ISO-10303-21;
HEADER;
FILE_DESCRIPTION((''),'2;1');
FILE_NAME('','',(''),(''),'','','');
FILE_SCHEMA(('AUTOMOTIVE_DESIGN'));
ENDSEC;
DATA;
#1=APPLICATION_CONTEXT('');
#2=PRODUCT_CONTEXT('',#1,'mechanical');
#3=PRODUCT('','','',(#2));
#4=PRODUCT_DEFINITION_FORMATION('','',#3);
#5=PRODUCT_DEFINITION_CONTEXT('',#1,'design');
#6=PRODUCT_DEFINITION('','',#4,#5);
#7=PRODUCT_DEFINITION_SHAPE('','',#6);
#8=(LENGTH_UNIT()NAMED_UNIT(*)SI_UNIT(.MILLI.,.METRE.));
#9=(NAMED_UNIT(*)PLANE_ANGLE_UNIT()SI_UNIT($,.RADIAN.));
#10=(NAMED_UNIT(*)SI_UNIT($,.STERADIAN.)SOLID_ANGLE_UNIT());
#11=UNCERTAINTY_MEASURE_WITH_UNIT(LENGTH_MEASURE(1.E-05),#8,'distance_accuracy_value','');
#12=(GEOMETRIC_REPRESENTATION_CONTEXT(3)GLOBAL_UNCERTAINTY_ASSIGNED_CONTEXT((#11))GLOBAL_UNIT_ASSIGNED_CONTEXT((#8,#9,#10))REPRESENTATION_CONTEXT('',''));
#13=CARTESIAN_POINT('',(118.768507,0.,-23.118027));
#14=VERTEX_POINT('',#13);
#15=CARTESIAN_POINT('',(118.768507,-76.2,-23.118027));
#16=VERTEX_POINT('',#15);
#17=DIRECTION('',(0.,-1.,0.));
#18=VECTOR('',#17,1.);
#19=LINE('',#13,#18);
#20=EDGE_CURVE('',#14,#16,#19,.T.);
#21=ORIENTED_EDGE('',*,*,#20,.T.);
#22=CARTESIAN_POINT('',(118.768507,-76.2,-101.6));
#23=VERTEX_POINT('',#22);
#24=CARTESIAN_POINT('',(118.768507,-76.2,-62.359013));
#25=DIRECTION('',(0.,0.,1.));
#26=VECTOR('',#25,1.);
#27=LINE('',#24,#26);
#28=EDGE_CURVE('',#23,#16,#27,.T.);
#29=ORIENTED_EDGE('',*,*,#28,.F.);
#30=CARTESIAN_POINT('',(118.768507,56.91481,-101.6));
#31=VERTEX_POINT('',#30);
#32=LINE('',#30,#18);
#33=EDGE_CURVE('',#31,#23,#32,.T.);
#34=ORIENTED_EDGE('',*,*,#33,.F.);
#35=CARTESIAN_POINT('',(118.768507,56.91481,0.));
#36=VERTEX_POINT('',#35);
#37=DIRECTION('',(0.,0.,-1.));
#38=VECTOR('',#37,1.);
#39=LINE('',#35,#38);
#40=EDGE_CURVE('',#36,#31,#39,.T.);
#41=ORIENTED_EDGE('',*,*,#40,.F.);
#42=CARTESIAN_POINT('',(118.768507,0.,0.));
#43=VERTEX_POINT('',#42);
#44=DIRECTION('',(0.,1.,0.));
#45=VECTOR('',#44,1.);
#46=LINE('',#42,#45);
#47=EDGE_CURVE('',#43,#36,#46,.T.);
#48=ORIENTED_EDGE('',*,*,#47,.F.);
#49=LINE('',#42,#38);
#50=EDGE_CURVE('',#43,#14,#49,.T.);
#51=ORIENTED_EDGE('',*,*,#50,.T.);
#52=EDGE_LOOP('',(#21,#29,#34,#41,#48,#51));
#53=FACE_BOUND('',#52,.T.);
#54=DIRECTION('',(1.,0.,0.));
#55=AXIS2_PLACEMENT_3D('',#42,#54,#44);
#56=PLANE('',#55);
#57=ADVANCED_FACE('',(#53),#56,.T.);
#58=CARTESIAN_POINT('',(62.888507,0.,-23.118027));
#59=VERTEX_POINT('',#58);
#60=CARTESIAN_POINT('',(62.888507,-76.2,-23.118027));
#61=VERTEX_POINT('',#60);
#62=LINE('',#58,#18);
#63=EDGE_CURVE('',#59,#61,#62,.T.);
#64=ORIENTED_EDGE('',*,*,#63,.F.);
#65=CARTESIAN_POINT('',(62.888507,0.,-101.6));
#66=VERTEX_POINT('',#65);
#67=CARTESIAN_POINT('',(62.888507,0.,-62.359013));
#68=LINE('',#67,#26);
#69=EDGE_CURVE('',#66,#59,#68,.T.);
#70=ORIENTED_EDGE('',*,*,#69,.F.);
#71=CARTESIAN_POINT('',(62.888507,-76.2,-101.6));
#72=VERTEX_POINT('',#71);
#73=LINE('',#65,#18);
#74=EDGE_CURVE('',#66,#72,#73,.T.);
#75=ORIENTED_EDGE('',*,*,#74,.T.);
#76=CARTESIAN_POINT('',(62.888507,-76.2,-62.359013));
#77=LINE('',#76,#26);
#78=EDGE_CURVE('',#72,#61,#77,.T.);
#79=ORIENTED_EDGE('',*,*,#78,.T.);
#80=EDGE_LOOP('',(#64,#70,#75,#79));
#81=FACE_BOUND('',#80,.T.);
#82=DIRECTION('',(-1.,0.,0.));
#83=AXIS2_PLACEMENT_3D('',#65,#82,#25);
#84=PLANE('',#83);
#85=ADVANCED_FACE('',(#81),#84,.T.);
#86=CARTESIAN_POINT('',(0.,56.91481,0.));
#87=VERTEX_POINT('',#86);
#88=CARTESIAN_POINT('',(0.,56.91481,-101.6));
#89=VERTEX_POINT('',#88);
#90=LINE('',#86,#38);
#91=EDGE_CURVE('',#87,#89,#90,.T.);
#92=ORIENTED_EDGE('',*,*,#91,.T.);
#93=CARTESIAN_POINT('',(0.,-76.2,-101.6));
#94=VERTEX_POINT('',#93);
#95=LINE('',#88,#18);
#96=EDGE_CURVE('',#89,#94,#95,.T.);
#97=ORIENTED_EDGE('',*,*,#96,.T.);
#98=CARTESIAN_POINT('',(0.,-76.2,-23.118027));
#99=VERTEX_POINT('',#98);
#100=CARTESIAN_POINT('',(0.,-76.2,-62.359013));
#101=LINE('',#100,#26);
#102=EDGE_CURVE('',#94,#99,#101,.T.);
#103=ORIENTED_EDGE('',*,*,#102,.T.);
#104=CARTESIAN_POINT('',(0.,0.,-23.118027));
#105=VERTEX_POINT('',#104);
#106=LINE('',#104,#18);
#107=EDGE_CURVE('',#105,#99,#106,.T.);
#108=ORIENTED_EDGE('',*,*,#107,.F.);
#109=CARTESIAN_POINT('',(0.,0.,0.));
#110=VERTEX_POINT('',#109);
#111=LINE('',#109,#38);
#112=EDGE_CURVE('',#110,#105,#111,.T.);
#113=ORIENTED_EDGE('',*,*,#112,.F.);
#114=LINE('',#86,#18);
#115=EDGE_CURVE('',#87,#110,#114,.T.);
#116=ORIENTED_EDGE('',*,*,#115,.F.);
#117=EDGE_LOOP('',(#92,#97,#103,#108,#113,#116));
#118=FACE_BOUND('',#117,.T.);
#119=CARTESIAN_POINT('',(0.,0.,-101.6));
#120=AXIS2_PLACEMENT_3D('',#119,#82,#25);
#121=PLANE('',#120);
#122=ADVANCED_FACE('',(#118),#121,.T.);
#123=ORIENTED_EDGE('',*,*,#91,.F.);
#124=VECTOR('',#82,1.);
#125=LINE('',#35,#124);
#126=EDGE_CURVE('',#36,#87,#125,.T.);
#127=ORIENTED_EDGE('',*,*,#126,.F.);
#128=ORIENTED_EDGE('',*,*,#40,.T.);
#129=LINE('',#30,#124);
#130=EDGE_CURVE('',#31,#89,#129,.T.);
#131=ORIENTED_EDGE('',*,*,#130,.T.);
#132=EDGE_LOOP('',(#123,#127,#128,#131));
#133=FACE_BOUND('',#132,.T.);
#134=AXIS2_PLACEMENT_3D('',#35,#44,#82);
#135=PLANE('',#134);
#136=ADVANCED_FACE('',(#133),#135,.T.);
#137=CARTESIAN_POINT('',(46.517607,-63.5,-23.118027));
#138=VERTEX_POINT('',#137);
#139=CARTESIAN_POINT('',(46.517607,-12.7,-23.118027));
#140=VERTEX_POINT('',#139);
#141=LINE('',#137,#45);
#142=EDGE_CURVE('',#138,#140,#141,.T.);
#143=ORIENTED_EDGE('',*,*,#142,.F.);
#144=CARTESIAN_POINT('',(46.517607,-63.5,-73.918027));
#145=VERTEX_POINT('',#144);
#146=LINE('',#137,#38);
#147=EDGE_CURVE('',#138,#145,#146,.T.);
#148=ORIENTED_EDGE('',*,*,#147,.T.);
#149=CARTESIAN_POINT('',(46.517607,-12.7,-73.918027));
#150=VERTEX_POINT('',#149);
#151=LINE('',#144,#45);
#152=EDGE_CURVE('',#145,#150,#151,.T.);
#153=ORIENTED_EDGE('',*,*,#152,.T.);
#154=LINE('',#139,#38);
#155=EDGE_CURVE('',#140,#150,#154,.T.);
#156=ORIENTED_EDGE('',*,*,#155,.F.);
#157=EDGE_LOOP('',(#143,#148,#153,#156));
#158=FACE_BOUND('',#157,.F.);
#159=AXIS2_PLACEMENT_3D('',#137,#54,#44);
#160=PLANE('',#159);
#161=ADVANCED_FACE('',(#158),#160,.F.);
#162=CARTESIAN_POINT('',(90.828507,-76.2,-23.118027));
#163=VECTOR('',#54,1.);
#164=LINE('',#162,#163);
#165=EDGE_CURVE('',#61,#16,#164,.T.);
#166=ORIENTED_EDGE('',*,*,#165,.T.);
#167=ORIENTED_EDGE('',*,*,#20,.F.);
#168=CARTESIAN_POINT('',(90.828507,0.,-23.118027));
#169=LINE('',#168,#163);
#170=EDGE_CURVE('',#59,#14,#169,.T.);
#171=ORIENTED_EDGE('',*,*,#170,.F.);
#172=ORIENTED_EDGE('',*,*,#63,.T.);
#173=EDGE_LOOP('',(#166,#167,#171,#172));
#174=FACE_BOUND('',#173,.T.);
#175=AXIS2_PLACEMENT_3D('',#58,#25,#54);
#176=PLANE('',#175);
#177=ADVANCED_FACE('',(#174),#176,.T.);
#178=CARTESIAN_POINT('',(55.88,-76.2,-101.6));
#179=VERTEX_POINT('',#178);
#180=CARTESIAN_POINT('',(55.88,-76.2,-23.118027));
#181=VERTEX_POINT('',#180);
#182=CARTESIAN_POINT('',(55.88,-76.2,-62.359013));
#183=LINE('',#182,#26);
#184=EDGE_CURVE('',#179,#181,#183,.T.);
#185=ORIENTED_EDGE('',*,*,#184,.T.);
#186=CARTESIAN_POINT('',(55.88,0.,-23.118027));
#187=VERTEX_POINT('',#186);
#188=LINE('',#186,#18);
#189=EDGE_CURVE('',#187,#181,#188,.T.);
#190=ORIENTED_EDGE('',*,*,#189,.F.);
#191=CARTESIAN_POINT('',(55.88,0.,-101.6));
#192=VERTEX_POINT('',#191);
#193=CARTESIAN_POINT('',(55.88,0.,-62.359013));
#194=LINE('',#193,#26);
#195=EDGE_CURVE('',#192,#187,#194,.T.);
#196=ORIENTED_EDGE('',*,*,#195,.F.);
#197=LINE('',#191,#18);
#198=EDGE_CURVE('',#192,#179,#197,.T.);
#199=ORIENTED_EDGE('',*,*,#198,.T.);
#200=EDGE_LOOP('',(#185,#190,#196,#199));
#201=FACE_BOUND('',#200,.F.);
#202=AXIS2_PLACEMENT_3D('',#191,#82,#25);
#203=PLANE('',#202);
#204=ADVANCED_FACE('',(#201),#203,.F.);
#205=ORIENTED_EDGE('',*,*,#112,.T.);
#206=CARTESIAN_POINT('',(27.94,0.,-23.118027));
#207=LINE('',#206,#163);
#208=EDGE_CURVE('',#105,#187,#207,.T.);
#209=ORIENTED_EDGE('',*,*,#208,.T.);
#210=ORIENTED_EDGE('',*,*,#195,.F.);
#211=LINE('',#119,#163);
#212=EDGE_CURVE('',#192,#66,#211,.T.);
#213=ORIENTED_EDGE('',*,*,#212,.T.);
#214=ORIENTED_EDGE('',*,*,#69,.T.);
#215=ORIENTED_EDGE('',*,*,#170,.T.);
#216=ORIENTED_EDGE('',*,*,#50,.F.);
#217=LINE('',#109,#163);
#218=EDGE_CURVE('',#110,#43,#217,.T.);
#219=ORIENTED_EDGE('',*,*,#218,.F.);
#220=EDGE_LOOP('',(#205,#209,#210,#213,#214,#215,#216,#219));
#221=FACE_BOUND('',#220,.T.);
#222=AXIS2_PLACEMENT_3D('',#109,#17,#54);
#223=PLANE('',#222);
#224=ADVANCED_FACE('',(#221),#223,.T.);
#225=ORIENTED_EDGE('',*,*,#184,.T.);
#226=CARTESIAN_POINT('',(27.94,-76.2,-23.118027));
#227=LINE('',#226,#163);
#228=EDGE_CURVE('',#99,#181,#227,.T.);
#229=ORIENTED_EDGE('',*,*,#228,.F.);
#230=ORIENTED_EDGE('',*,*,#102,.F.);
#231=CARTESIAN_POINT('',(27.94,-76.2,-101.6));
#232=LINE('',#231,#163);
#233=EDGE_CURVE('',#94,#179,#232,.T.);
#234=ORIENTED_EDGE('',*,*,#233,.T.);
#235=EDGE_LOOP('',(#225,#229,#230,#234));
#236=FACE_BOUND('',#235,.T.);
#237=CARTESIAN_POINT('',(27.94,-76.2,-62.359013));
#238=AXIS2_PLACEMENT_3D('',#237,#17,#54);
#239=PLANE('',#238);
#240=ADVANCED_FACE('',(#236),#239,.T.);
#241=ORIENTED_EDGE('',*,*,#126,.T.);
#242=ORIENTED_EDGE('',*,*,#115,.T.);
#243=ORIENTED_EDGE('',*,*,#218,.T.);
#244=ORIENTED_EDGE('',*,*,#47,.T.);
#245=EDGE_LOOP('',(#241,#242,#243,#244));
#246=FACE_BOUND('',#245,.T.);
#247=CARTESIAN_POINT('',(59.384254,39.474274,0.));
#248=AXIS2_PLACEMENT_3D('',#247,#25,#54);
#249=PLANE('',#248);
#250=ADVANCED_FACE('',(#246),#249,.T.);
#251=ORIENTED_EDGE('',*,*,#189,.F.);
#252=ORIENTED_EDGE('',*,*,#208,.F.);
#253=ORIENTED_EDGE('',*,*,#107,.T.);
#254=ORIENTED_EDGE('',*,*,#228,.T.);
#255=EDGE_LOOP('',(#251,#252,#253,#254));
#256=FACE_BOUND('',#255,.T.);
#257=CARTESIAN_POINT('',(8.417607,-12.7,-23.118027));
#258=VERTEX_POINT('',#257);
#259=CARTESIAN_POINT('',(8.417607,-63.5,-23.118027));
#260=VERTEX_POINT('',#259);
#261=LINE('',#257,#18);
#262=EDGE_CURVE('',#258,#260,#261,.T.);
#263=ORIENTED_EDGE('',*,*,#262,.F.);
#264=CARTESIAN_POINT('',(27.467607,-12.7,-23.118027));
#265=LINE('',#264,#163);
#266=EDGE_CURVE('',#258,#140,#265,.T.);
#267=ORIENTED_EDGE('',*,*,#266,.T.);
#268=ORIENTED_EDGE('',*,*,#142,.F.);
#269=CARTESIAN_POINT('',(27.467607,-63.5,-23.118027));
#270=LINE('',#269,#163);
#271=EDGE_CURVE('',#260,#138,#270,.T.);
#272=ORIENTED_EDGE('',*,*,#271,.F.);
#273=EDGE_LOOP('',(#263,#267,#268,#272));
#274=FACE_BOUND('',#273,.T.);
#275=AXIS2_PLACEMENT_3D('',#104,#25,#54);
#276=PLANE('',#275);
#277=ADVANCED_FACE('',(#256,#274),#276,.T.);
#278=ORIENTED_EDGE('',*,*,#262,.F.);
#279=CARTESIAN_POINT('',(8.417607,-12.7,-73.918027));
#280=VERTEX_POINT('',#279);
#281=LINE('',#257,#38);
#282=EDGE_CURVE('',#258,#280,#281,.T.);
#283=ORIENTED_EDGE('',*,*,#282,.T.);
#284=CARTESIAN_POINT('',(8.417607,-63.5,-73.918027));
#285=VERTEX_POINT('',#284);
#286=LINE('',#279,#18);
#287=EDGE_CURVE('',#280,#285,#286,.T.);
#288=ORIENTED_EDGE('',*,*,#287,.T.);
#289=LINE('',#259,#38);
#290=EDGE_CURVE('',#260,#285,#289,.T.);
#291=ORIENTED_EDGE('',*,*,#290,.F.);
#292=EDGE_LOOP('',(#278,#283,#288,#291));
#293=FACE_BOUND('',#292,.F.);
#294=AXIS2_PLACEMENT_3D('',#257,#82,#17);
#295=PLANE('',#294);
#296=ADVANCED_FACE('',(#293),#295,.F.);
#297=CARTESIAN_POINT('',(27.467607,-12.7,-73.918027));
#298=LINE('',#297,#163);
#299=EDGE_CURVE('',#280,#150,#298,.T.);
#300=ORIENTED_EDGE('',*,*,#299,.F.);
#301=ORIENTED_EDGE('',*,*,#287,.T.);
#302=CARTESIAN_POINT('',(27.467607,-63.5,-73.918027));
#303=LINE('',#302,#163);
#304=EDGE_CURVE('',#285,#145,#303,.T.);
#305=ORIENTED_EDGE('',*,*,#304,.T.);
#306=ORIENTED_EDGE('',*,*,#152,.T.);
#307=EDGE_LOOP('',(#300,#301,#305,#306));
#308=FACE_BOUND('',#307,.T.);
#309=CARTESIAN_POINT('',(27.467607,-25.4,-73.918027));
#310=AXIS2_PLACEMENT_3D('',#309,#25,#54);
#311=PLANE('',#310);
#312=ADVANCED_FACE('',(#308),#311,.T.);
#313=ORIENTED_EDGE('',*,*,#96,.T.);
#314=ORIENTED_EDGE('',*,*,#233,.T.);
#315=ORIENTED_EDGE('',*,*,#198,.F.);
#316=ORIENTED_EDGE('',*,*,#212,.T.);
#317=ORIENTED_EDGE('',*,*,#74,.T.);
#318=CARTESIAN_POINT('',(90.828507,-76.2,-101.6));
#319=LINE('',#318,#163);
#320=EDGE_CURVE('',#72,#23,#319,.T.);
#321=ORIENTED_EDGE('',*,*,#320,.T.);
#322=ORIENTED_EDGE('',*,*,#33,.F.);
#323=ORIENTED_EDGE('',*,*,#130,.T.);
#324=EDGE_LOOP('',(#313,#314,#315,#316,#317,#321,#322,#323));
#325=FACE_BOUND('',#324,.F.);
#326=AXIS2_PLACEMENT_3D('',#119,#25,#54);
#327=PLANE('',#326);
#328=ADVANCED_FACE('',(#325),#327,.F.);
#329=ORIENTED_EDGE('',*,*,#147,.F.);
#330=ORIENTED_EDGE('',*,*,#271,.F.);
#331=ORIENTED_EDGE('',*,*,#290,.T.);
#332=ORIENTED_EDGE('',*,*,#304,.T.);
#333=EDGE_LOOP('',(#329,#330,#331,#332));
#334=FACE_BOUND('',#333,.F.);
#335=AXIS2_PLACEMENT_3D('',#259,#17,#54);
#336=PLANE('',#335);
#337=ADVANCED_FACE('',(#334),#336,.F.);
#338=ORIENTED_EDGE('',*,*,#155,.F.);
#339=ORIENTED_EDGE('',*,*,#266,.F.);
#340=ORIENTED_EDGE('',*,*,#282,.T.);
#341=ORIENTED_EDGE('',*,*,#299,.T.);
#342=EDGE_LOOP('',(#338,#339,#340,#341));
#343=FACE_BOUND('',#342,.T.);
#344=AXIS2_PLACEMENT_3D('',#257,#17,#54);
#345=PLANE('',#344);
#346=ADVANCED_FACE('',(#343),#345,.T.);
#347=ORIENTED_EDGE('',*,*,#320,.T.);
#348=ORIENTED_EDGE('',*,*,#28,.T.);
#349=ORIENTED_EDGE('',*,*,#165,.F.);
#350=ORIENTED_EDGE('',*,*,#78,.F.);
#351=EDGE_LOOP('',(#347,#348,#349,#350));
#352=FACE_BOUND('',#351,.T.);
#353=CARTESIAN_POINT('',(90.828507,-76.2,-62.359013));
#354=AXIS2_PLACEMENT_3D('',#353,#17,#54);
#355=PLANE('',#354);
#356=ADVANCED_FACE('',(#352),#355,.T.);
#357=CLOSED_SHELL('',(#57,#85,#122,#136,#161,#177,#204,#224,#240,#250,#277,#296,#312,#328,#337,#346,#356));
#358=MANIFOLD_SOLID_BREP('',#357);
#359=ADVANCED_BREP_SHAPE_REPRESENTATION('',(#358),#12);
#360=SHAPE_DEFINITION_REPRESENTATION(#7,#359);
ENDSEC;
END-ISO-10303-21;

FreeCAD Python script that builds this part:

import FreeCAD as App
import Part
import Sketcher
Q = App.Units.Quantity


def add_polygon(sketch, points):
    """Adds a closed chain of lines whose ends are joined by coincident constraints."""
    first, n = sketch.GeometryCount, len(points)
    for a, b in zip(points, points[1:] + points[:1]):
        sketch.addGeometry(Part.LineSegment(App.Vector(*a, 0), App.Vector(*b, 0)), False)
    for i in range(n):
        sketch.addConstraint(Sketcher.Constraint("Coincident", first + i, 2, first + (i + 1) % n, 1))

doc = App.newDocument("Part")
body = doc.addObject("PartDesign::Body", "Body")

# Sketch on XY plane
sketch1 = body.newObject("Sketcher::SketchObject", "Sketch")
sketch1.AttachmentSupport = (doc.getObject("XY_Plane"), [""])
sketch1.MapMode = "FlatFace"
add_polygon(sketch1, [(118.768507, 0), (118.768507, 56.91481), (0, 56.91481), (0, 0)])  # lines 0-3
sketch1.addConstraint([
    Sketcher.Constraint("Vertical", 0),
    Sketcher.Constraint("Horizontal", 1),
    Sketcher.Constraint("Vertical", 2),
    Sketcher.Constraint("Horizontal", 3),
    Sketcher.Constraint("Coincident", 2, 2, -1, 1),
    Sketcher.Constraint("DistanceY", 0, 1, 0, 2, Q("56.91481 mm")),
    Sketcher.Constraint("DistanceX", 1, 2, 1, 1, Q("118.768507 mm")),
])
pad1 = body.newObject("PartDesign::Pad", "Pad")
pad1.Profile = sketch1
pad1.Length = Q("4 in")
pad1.Reversed = True

# Sketch on XZ plane
sketch2 = body.newObject("Sketcher::SketchObject", "Sketch001")
sketch2.AttachmentSupport = (doc.getObject("XZ_Plane"), [""])
sketch2.MapMode = "FlatFace"
add_polygon(sketch2, [(0, -23.118027), (0, -101.6), (55.88, -101.6), (55.88, -23.118027)])  # lines 0-3
add_polygon(sketch2, [(62.888507, -23.118027), (62.888507, -101.6), (118.768507, -101.6), (118.768507, -23.118027)])  # lines 4-7
sketch2.addConstraint([
    Sketcher.Constraint("Vertical", 0),
    Sketcher.Constraint("Horizontal", 1),
    Sketcher.Constraint("Vertical", 2),
    Sketcher.Constraint("Horizontal", 3),
    Sketcher.Constraint("Vertical", 4),
    Sketcher.Constraint("Horizontal", 5),
    Sketcher.Constraint("Vertical", 6),
    Sketcher.Constraint("Horizontal", 7),
    Sketcher.Constraint("PointOnObject", 0, 2, -2),
    Sketcher.Constraint("Horizontal", 1, 2, 4, 2),
    Sketcher.Constraint("Horizontal", 3, 2, 6, 2),
    Sketcher.Constraint("Equal", 3, 5),
    Sketcher.Constraint("DistanceX", 1, 1, 1, 2, Q("2.2 in")),
    Sketcher.Constraint("DistanceY", 0, 2, -1, 1, Q("4 in")),
    Sketcher.Constraint("DistanceY", 0, 2, 0, 1, Q("78.481973 mm")),
    Sketcher.Constraint("DistanceX", -1, 1, 4, 2, Q("62.888507 mm")),
])
pad2 = body.newObject("PartDesign::Pad", "Pad001")
pad2.Profile = sketch2
pad2.Length = Q("3 in")

# Sketch on XY plane
sketch3 = body.newObject("Sketcher::SketchObject", "Sketch002")
sketch3.AttachmentSupport = (doc.getObject("XY_Plane"), [""])
sketch3.MapMode = "FlatFace"
sketch3.AttachmentOffset = App.Placement(App.Vector(0, 0, -23.118027), App.Rotation())
add_polygon(sketch3, [(8.417607, -12.7), (8.417607, -63.5), (46.517607, -63.5), (46.517607, -12.7)])  # lines 0-3
sketch3.addConstraint([
    Sketcher.Constraint("Vertical", 0),
    Sketcher.Constraint("Horizontal", 1),
    Sketcher.Constraint("Vertical", 2),
    Sketcher.Constraint("Horizontal", 3),
    Sketcher.Constraint("DistanceY", 0, 2, 0, 1, Q("2 in")),
    Sketcher.Constraint("DistanceX", 1, 1, 1, 2, Q("1.5 in")),
    Sketcher.Constraint("DistanceY", 0, 2, -1, 1, Q("2.5 in")),
    Sketcher.Constraint("DistanceX", -1, 1, 0, 2, Q("8.417607 mm")),
])
pocket1 = body.newObject("PartDesign::Pocket", "Pocket")
pocket1.Profile = sketch3
pocket1.Length = Q("2 in")

doc.recompute()
